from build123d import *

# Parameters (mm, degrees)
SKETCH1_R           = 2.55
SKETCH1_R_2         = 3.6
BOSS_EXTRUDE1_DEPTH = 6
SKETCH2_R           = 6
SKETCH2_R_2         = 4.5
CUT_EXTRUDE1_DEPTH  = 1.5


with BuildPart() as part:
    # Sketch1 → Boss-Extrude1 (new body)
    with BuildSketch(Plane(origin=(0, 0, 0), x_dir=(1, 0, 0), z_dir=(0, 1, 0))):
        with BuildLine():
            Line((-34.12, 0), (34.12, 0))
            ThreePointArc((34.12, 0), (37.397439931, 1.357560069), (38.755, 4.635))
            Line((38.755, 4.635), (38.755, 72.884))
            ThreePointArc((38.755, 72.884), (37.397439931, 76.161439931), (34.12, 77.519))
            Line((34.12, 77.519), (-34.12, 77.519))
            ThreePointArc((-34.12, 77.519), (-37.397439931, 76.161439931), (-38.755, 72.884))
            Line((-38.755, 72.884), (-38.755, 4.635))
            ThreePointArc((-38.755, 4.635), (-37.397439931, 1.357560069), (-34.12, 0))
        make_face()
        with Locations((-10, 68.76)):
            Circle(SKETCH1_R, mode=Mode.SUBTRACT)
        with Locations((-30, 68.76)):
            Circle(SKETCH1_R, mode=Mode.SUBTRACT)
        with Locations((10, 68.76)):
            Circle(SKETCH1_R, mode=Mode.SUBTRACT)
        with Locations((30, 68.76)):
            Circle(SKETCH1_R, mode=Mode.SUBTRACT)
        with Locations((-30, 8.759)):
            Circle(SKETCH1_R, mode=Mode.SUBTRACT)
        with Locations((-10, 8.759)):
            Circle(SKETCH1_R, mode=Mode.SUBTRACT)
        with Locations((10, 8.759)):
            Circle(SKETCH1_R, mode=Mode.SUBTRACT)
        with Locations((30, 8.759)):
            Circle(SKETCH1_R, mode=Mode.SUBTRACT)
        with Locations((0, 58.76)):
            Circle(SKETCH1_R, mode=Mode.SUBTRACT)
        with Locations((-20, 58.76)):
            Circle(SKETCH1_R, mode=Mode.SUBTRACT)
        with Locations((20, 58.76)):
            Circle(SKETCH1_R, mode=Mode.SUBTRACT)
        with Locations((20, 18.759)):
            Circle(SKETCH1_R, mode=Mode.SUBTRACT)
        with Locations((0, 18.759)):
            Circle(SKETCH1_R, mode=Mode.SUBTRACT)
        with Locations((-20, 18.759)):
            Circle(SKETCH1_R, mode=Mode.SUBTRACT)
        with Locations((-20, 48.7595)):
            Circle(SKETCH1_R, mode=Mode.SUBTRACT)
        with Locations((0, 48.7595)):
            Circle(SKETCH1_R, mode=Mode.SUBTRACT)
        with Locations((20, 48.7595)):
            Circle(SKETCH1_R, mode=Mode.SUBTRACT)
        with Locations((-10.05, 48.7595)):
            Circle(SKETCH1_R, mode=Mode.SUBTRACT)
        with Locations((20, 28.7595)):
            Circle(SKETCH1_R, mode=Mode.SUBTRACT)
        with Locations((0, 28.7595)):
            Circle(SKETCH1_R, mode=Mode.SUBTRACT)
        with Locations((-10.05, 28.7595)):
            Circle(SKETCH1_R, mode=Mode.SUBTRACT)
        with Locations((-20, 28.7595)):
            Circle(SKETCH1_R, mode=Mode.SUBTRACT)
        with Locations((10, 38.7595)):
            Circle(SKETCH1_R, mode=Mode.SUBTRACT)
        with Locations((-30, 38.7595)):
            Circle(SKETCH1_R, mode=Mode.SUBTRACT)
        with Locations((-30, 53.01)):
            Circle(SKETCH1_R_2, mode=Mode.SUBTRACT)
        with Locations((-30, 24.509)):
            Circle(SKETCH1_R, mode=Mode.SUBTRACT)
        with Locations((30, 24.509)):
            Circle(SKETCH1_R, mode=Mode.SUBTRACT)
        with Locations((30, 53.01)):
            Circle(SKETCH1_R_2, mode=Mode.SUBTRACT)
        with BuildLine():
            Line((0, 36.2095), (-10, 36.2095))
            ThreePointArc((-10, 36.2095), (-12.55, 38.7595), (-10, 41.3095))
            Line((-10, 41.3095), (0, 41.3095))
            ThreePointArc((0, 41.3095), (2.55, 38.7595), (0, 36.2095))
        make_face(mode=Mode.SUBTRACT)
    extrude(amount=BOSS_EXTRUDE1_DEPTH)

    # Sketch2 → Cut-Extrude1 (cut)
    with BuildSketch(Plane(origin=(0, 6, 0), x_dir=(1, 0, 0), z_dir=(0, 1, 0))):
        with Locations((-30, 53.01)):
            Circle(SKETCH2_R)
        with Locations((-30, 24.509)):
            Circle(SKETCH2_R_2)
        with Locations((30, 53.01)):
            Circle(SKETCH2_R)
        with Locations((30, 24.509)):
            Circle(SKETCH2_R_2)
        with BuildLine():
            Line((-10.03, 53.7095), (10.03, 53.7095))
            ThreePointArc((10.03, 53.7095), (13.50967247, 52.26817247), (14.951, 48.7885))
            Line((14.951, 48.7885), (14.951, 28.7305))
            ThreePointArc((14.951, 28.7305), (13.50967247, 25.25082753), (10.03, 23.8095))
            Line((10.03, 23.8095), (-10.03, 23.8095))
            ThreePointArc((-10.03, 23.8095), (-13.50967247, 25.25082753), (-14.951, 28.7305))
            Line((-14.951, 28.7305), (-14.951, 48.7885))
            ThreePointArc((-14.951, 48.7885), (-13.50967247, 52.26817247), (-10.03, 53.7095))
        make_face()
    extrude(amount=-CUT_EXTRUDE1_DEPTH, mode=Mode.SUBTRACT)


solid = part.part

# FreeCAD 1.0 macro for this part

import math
import FreeCAD as App
import Part
import Sketcher
from FreeCAD import Vector
Q = App.Units.Quantity

doc = App.newDocument("Part")
body = doc.addObject("PartDesign::Body", "Body")

# Sketch on XZ plane
sketch1 = body.newObject("Sketcher::SketchObject", "Sketch")
sketch1.AttachmentSupport = (doc.getObject("XZ_Plane"), [""])
sketch1.MapMode = "FlatFace"
sketch1.addGeometry(Part.LineSegment(Vector(-34.1, 0, 0), Vector(34.1, 0, 0)), False)
sketch1.addGeometry(Part.ArcOfCircle(Part.Circle(Vector(34.1, -4.6, 0), Vector(0, 0, 1), 4.6), math.radians(0), math.radians(90)), False)
sketch1.addGeometry(Part.LineSegment(Vector(38.8, -4.6, 0), Vector(38.8, -72.9, 0)), False)
sketch1.addGeometry(Part.ArcOfCircle(Part.Circle(Vector(34.1, -72.9, 0), Vector(0, 0, 1), 4.6), math.radians(-90), math.radians(0)), False)
sketch1.addGeometry(Part.LineSegment(Vector(34.1, -77.5, 0), Vector(-34.1, -77.5, 0)), False)
sketch1.addGeometry(Part.ArcOfCircle(Part.Circle(Vector(-34.1, -72.9, 0), Vector(0, 0, 1), 4.6), math.radians(180), math.radians(270)), False)
sketch1.addGeometry(Part.LineSegment(Vector(-38.8, -72.9, 0), Vector(-38.8, -4.6, 0)), False)
sketch1.addGeometry(Part.ArcOfCircle(Part.Circle(Vector(-34.1, -4.6, 0), Vector(0, 0, 1), 4.6), math.radians(90), math.radians(180)), False)
sketch1.addGeometry(Part.Circle(Vector(-30, -8.8, 0), Vector(0, 0, 1), 2.5), False)
sketch1.addGeometry(Part.Circle(Vector(-20, -18.8, 0), Vector(0, 0, 1), 2.5), False)
sketch1.addGeometry(Part.Circle(Vector(-10, -8.8, 0), Vector(0, 0, 1), 2.5), False)
sketch1.addGeometry(Part.Circle(Vector(-30, -24.5, 0), Vector(0, 0, 1), 2.5), False)
sketch1.addGeometry(Part.Circle(Vector(-20, -28.8, 0), Vector(0, 0, 1), 2.5), False)
sketch1.addGeometry(Part.Circle(Vector(-10.1, -28.8, 0), Vector(0, 0, 1), 2.5), False)
sketch1.addGeometry(Part.ArcOfCircle(Part.Circle(Vector(0, -38.8, 0), Vector(0, 0, 1), 2.5), math.radians(-90), math.radians(90)), False)
sketch1.addGeometry(Part.LineSegment(Vector(0, -36.2, 0), Vector(-10, -36.2, 0)), False)
sketch1.addGeometry(Part.ArcOfCircle(Part.Circle(Vector(-10, -38.8, 0), Vector(0, 0, 1), 2.5), math.radians(90), math.radians(270)), False)
sketch1.addGeometry(Part.LineSegment(Vector(-10, -41.3, 0), Vector(0, -41.3, 0)), False)
sketch1.addGeometry(Part.Circle(Vector(10, -8.8, 0), Vector(0, 0, 1), 2.5), False)
sketch1.addGeometry(Part.Circle(Vector(0, -18.8, 0), Vector(0, 0, 1), 2.5), False)
sketch1.addGeometry(Part.Circle(Vector(30, -8.8, 0), Vector(0, 0, 1), 2.5), False)
sketch1.addGeometry(Part.Circle(Vector(20, -18.8, 0), Vector(0, 0, 1), 2.5), False)
sketch1.addGeometry(Part.Circle(Vector(0, -28.8, 0), Vector(0, 0, 1), 2.5), False)
sketch1.addGeometry(Part.Circle(Vector(20, -28.8, 0), Vector(0, 0, 1), 2.5), False)
sketch1.addGeometry(Part.Circle(Vector(30, -24.5, 0), Vector(0, 0, 1), 2.5), False)
sketch1.addGeometry(Part.Circle(Vector(-30, -38.8, 0), Vector(0, 0, 1), 2.5), False)
sketch1.addGeometry(Part.Circle(Vector(-30, -53, 0), Vector(0, 0, 1), 3.6), False)
sketch1.addGeometry(Part.Circle(Vector(-20, -48.8, 0), Vector(0, 0, 1), 2.5), False)
sketch1.addGeometry(Part.Circle(Vector(-10.1, -48.8, 0), Vector(0, 0, 1), 2.5), False)
sketch1.addGeometry(Part.Circle(Vector(-20, -58.8, 0), Vector(0, 0, 1), 2.5), False)
sketch1.addGeometry(Part.Circle(Vector(-30, -68.8, 0), Vector(0, 0, 1), 2.5), False)
sketch1.addGeometry(Part.Circle(Vector(-10, -68.8, 0), Vector(0, 0, 1), 2.5), False)
sketch1.addGeometry(Part.Circle(Vector(10, -38.8, 0), Vector(0, 0, 1), 2.5), False)
sketch1.addGeometry(Part.Circle(Vector(0, -48.8, 0), Vector(0, 0, 1), 2.5), False)
sketch1.addGeometry(Part.Circle(Vector(20, -48.8, 0), Vector(0, 0, 1), 2.5), False)
sketch1.addGeometry(Part.Circle(Vector(30, -53, 0), Vector(0, 0, 1), 3.6), False)
sketch1.addGeometry(Part.Circle(Vector(0, -58.8, 0), Vector(0, 0, 1), 2.5), False)
sketch1.addGeometry(Part.Circle(Vector(10, -68.8, 0), Vector(0, 0, 1), 2.5), False)
sketch1.addGeometry(Part.Circle(Vector(20, -58.8, 0), Vector(0, 0, 1), 2.5), False)
sketch1.addGeometry(Part.Circle(Vector(30, -68.8, 0), Vector(0, 0, 1), 2.5), False)
sketch1.addConstraint(Sketcher.Constraint("Tangent", 0, 2, 1, 2))
sketch1.addConstraint(Sketcher.Constraint("Tangent", 1, 1, 2, 1))
sketch1.addConstraint(Sketcher.Constraint("Tangent", 2, 2, 3, 2))
sketch1.addConstraint(Sketcher.Constraint("Tangent", 3, 1, 4, 1))
sketch1.addConstraint(Sketcher.Constraint("Tangent", 4, 2, 5, 2))
sketch1.addConstraint(Sketcher.Constraint("Tangent", 5, 1, 6, 1))
sketch1.addConstraint(Sketcher.Constraint("Tangent", 6, 2, 7, 2))
sketch1.addConstraint(Sketcher.Constraint("Tangent", 7, 1, 0, 1))
sketch1.addConstraint(Sketcher.Constraint("Tangent", 14, 2, 15, 1))
sketch1.addConstraint(Sketcher.Constraint("Tangent", 15, 2, 16, 1))
sketch1.addConstraint(Sketcher.Constraint("Tangent", 16, 2, 17, 1))
sketch1.addConstraint(Sketcher.Constraint("Tangent", 17, 2, 14, 1))
sketch1.addConstraint(Sketcher.Constraint("Horizontal", 0))
sketch1.addConstraint(Sketcher.Constraint("Vertical", 2))
sketch1.addConstraint(Sketcher.Constraint("Horizontal", 4))
sketch1.addConstraint(Sketcher.Constraint("Vertical", 6))
sketch1.addConstraint(Sketcher.Constraint("Horizontal", 15))
sketch1.addConstraint(Sketcher.Constraint("Horizontal", 17))
sketch1.addConstraint(Sketcher.Constraint("Equal", 1, 3))
sketch1.addConstraint(Sketcher.Constraint("Equal", 3, 5))
sketch1.addConstraint(Sketcher.Constraint("Equal", 5, 7))
sketch1.addConstraint(Sketcher.Constraint("Equal", 8, 9))
sketch1.addConstraint(Sketcher.Constraint("Equal", 9, 10))
sketch1.addConstraint(Sketcher.Constraint("Equal", 10, 11))
sketch1.addConstraint(Sketcher.Constraint("Equal", 11, 12))
sketch1.addConstraint(Sketcher.Constraint("Equal", 12, 13))
sketch1.addConstraint(Sketcher.Constraint("Equal", 13, 14))
sketch1.addConstraint(Sketcher.Constraint("Equal", 16, 18))
sketch1.addConstraint(Sketcher.Constraint("Equal", 18, 19))
sketch1.addConstraint(Sketcher.Constraint("Equal", 19, 20))
sketch1.addConstraint(Sketcher.Constraint("Equal", 20, 21))
sketch1.addConstraint(Sketcher.Constraint("Equal", 21, 22))
sketch1.addConstraint(Sketcher.Constraint("Equal", 22, 23))
sketch1.addConstraint(Sketcher.Constraint("Equal", 23, 24))
sketch1.addConstraint(Sketcher.Constraint("Equal", 24, 25))
sketch1.addConstraint(Sketcher.Constraint("Equal", 25, 27))
sketch1.addConstraint(Sketcher.Constraint("Equal", 27, 28))
sketch1.addConstraint(Sketcher.Constraint("Equal", 28, 29))
sketch1.addConstraint(Sketcher.Constraint("Equal", 29, 30))
sketch1.addConstraint(Sketcher.Constraint("Equal", 30, 31))
sketch1.addConstraint(Sketcher.Constraint("Equal", 31, 32))
sketch1.addConstraint(Sketcher.Constraint("Equal", 32, 33))
sketch1.addConstraint(Sketcher.Constraint("Equal", 33, 34))
sketch1.addConstraint(Sketcher.Constraint("Equal", 26, 35))
sketch1.addConstraint(Sketcher.Constraint("Equal", 34, 36))
sketch1.addConstraint(Sketcher.Constraint("Equal", 36, 37))
sketch1.addConstraint(Sketcher.Constraint("Equal", 37, 38))
sketch1.addConstraint(Sketcher.Constraint("Equal", 38, 39))
sketch1.addConstraint(Sketcher.Constraint("Symmetric", 0, 2, 7, 1, -1, 1))
sketch1.addConstraint(Sketcher.Constraint("Symmetric", 10, 3, 18, 3, -2))
sketch1.addConstraint(Sketcher.Constraint("Symmetric", 8, 3, 20, 3, -2))
sketch1.addConstraint(Sketcher.Constraint("Symmetric", 9, 3, 21, 3, -2))
sketch1.addConstraint(Sketcher.Constraint("Symmetric", 12, 3, 23, 3, -2))
sketch1.addConstraint(Sketcher.Constraint("Symmetric", 11, 3, 24, 3, -2))
sketch1.addConstraint(Sketcher.Constraint("Symmetric", 16, 3, 32, 3, -2))
sketch1.addConstraint(Sketcher.Constraint("Symmetric", 27, 3, 34, 3, -2))
sketch1.addConstraint(Sketcher.Constraint("Symmetric", 26, 3, 35, 3, -2))
sketch1.addConstraint(Sketcher.Constraint("Symmetric", 31, 3, 37, 3, -2))
sketch1.addConstraint(Sketcher.Constraint("Symmetric", 29, 3, 38, 3, -2))
sketch1.addConstraint(Sketcher.Constraint("Symmetric", 30, 3, 39, 3, -2))
sketch1.addConstraint(Sketcher.Constraint("PointOnObject", 14, 3, -2))
sketch1.addConstraint(Sketcher.Constraint("PointOnObject", 19, 3, -2))
sketch1.addConstraint(Sketcher.Constraint("PointOnObject", 22, 3, -2))
sketch1.addConstraint(Sketcher.Constraint("PointOnObject", 33, 3, -2))
sketch1.addConstraint(Sketcher.Constraint("PointOnObject", 36, 3, -2))
sketch1.addConstraint(Sketcher.Constraint("Horizontal", 8, 3, 10, 3))
sketch1.addConstraint(Sketcher.Constraint("Horizontal", 12, 3, 13, 3))
sketch1.addConstraint(Sketcher.Constraint("Horizontal", 9, 3, 19, 3))
sketch1.addConstraint(Sketcher.Constraint("Horizontal", 13, 3, 22, 3))
sketch1.addConstraint(Sketcher.Constraint("Horizontal", 16, 3, 25, 3))
sketch1.addConstraint(Sketcher.Constraint("Horizontal", 27, 3, 28, 3))
sketch1.addConstraint(Sketcher.Constraint("Horizontal", 30, 3, 31, 3))
sketch1.addConstraint(Sketcher.Constraint("Horizontal", 28, 3, 33, 3))
sketch1.addConstraint(Sketcher.Constraint("Horizontal", 29, 3, 36, 3))
sketch1.addConstraint(Sketcher.Constraint("Vertical", 8, 3, 11, 3))
sketch1.addConstraint(Sketcher.Constraint("Vertical", 9, 3, 12, 3))
sketch1.addConstraint(Sketcher.Constraint("Vertical", 10, 3, 16, 3))
sketch1.addConstraint(Sketcher.Constraint("Vertical", 11, 3, 25, 3))
sketch1.addConstraint(Sketcher.Constraint("Vertical", 25, 3, 26, 3))
sketch1.addConstraint(Sketcher.Constraint("Vertical", 12, 3, 27, 3))
sketch1.addConstraint(Sketcher.Constraint("Vertical", 13, 3, 28, 3))
sketch1.addConstraint(Sketcher.Constraint("Vertical", 27, 3, 29, 3))
sketch1.addConstraint(Sketcher.Constraint("Vertical", 26, 3, 30, 3))
sketch1.addConstraint(Sketcher.Constraint("Vertical", 16, 3, 31, 3))
sketch1.addConstraint(Sketcher.Constraint("Diameter", 8, Q("5.1 mm")))
sketch1.addConstraint(Sketcher.Constraint("Diameter", 26, Q("7.2 mm")))
sketch1.addConstraint(Sketcher.Constraint("DistanceX", 15, 2, 15, 1, Q("10 mm")))
sketch1.addConstraint(Sketcher.Constraint("DistanceX", 8, 3, -1, 1, Q("30 mm")))
sketch1.addConstraint(Sketcher.Constraint("DistanceX", 9, 3, -1, 1, Q("20 mm")))
sketch1.addConstraint(Sketcher.Constraint("Radius", 1, Q("4.635 mm")))
sketch1.addConstraint(Sketcher.Constraint("DistanceY", 9, 3, 8, 3, Q("10 mm")))
sketch1.addConstraint(Sketcher.Constraint("DistanceY", 14, 3, 13, 3, Q("10 mm")))
sketch1.addConstraint(Sketcher.Constraint("DistanceY", 27, 3, 16, 3, Q("10 mm")))
sketch1.addConstraint(Sketcher.Constraint("DistanceY", 30, 3, 29, 3, Q("10 mm")))
sketch1.addConstraint(Sketcher.Constraint("DistanceX", 0, 1, 0, 2, Q("68.24 mm")))
sketch1.addConstraint(Sketcher.Constraint("DistanceY", 2, 2, 2, 1, Q("68.249 mm")))
sketch1.addConstraint(Sketcher.Constraint("DistanceX", 13, 3, -1, 1, Q("10.05 mm")))
sketch1.addConstraint(Sketcher.Constraint("DistanceY", 26, 3, -1, 1, Q("53.01 mm")))
sketch1.addConstraint(Sketcher.Constraint("DistanceY", 29, 3, -1, 1, Q("58.76 mm")))
sketch1.addConstraint(Sketcher.Constraint("DistanceY", 11, 3, 9, 3, Q("5.75 mm")))
sketch1.addConstraint(Sketcher.Constraint("DistanceY", 8, 3, -1, 1, Q("8.759 mm")))
sketch1.addConstraint(Sketcher.Constraint("DistanceY", 12, 3, -1, 1, Q("28.7595 mm")))
pad1 = body.newObject("PartDesign::Pad", "Pad")
pad1.Profile = sketch1
pad1.Length = 6
pad1.Reversed = True

# Sketch on XZ plane
sketch2 = body.newObject("Sketcher::SketchObject", "Sketch001")
sketch2.AttachmentSupport = (doc.getObject("XZ_Plane"), [""])
sketch2.MapMode = "FlatFace"
sketch2.AttachmentOffset = App.Placement(Vector(0, 0, -6), App.Rotation())
sketch2.addGeometry(Part.Circle(Vector(-30, -53, 0), Vector(0, 0, 1), 6), False)
sketch2.addGeometry(Part.Circle(Vector(-30, -24.5, 0), Vector(0, 0, 1), 4.5), False)
sketch2.addGeometry(Part.Circle(Vector(30, -53, 0), Vector(0, 0, 1), 6), False)
sketch2.addGeometry(Part.Circle(Vector(30, -24.5, 0), Vector(0, 0, 1), 4.5), False)
sketch2.addGeometry(Part.LineSegment(Vector(10, -53.7, 0), Vector(-10, -53.7, 0)), False)
sketch2.addGeometry(Part.ArcOfCircle(Part.Circle(Vector(-10, -48.8, 0), Vector(0, 0, 1), 4.9), math.radians(-180), math.radians(-90)), False)
sketch2.addGeometry(Part.LineSegment(Vector(-15, -48.8, 0), Vector(-15, -28.7, 0)), False)
sketch2.addGeometry(Part.ArcOfCircle(Part.Circle(Vector(-10, -28.7, 0), Vector(0, 0, 1), 4.9), math.radians(90), math.radians(180)), False)
sketch2.addGeometry(Part.LineSegment(Vector(-10, -23.8, 0), Vector(10, -23.8, 0)), False)
sketch2.addGeometry(Part.ArcOfCircle(Part.Circle(Vector(10, -28.7, 0), Vector(0, 0, 1), 4.9), math.radians(0), math.radians(90)), False)
sketch2.addGeometry(Part.LineSegment(Vector(15, -28.7, 0), Vector(15, -48.8, 0)), False)
sketch2.addGeometry(Part.ArcOfCircle(Part.Circle(Vector(10, -48.8, 0), Vector(0, 0, 1), 4.9), math.radians(-90), math.radians(0)), False)
sketch2.addConstraint(Sketcher.Constraint("Tangent", 4, 2, 5, 2))
sketch2.addConstraint(Sketcher.Constraint("Tangent", 5, 1, 6, 1))
sketch2.addConstraint(Sketcher.Constraint("Tangent", 6, 2, 7, 2))
sketch2.addConstraint(Sketcher.Constraint("Tangent", 7, 1, 8, 1))
sketch2.addConstraint(Sketcher.Constraint("Tangent", 8, 2, 9, 2))
sketch2.addConstraint(Sketcher.Constraint("Tangent", 9, 1, 10, 1))
sketch2.addConstraint(Sketcher.Constraint("Tangent", 10, 2, 11, 2))
sketch2.addConstraint(Sketcher.Constraint("Tangent", 11, 1, 4, 1))
sketch2.addConstraint(Sketcher.Constraint("Horizontal", 4))
sketch2.addConstraint(Sketcher.Constraint("Vertical", 6))
sketch2.addConstraint(Sketcher.Constraint("Horizontal", 8))
sketch2.addConstraint(Sketcher.Constraint("Vertical", 10))
sketch2.addConstraint(Sketcher.Constraint("Equal", 0, 2))
sketch2.addConstraint(Sketcher.Constraint("Equal", 1, 3))
sketch2.addConstraint(Sketcher.Constraint("Equal", 5, 7))
sketch2.addConstraint(Sketcher.Constraint("Equal", 7, 9))
sketch2.addConstraint(Sketcher.Constraint("Equal", 9, 11))
sketch2.addConstraint(Sketcher.Constraint("Symmetric", 0, 3, 2, 3, -2))
sketch2.addConstraint(Sketcher.Constraint("Symmetric", 1, 3, 3, 3, -2))
sketch2.addConstraint(Sketcher.Constraint("Vertical", 0, 3, 1, 3))
sketch2.addConstraint(Sketcher.Constraint("Diameter", 0, Q("12 mm")))
sketch2.addConstraint(Sketcher.Constraint("Diameter", 1, Q("9 mm")))
sketch2.addConstraint(Sketcher.Constraint("DistanceX", 0, 3, -1, 1, Q("30 mm")))
sketch2.addConstraint(Sketcher.Constraint("Radius", 5, Q("4.921 mm")))
sketch2.addConstraint(Sketcher.Constraint("DistanceX", 4, 2, 4, 1, Q("20.06 mm")))
sketch2.addConstraint(Sketcher.Constraint("DistanceY", 6, 1, 6, 2, Q("20.058 mm")))
sketch2.addConstraint(Sketcher.Constraint("DistanceY", 0, 3, -1, 1, Q("53.01 mm")))
sketch2.addConstraint(Sketcher.Constraint("DistanceX", 5, 3, -1, 1, Q("10.03 mm")))
sketch2.addConstraint(Sketcher.Constraint("DistanceY", 1, 3, -1, 1, Q("24.509 mm")))
sketch2.addConstraint(Sketcher.Constraint("DistanceY", 5, 3, -1, 1, Q("48.7885 mm")))
pocket1 = body.newObject("PartDesign::Pocket", "Pocket")
pocket1.Profile = sketch2
pocket1.Length = 1.5
pocket1.Reversed = True

doc.recompute()
